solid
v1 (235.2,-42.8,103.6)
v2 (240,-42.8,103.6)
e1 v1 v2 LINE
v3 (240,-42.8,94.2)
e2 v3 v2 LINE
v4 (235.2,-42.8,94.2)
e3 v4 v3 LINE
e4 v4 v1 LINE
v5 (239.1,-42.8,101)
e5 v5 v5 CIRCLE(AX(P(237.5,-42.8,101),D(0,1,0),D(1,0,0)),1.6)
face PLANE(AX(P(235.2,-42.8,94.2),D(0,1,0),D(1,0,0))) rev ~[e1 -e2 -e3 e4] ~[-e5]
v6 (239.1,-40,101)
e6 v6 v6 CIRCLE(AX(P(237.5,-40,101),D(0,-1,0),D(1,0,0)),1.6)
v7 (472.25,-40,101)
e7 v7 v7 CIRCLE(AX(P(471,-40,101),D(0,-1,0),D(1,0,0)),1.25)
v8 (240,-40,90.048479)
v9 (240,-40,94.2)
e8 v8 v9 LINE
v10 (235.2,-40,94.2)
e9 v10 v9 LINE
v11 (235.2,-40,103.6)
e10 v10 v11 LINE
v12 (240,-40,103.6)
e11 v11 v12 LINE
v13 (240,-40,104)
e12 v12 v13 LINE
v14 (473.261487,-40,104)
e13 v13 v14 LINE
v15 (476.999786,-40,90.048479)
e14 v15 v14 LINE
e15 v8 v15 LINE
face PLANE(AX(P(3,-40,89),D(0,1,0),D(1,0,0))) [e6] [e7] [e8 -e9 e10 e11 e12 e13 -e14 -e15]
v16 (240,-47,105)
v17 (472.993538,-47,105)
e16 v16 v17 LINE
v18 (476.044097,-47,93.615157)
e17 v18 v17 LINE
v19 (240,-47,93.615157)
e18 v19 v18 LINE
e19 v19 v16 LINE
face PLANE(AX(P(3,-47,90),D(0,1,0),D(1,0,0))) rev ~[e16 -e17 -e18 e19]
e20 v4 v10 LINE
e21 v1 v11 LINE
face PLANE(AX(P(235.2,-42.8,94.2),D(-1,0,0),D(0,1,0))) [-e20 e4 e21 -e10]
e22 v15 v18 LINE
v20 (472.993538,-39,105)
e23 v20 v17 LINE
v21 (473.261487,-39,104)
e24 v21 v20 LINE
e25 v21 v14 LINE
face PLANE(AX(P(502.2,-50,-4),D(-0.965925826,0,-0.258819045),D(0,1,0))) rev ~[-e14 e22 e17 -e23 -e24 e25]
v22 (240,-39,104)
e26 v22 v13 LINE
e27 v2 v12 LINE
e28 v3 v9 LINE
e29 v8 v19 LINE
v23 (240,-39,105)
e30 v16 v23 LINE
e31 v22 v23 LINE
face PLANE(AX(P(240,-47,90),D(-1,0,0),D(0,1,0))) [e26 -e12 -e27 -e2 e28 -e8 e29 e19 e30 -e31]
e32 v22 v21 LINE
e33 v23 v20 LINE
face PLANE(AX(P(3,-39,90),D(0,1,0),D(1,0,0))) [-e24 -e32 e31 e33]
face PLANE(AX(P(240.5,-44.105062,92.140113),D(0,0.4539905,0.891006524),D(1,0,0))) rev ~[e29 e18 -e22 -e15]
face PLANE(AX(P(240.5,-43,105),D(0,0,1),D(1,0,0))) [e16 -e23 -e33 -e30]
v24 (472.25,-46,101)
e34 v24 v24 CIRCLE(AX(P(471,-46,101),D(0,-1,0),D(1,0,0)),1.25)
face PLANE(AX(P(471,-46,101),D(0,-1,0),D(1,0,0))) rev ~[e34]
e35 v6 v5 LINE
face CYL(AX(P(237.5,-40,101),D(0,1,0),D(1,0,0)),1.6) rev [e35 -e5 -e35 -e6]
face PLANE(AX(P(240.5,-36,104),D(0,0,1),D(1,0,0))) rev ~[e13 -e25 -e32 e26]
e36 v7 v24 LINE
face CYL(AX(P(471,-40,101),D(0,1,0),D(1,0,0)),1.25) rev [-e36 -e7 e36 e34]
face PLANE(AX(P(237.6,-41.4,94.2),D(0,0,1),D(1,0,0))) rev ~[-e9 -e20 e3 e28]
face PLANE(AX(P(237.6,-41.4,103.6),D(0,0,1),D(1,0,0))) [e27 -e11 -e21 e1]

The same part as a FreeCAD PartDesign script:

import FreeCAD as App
import Part
import Sketcher
Q = App.Units.Quantity

doc = App.newDocument("Part")
body = doc.addObject("PartDesign::Body", "Body")

# Sketch on XY plane
sketch1 = body.newObject("Sketcher::SketchObject", "Sketch")
sketch1.AttachmentSupport = (doc.getObject("XY_Plane"), [""])
sketch1.MapMode = "FlatFace"
sketch1.addGeometry(Part.Circle(App.Vector(0, 0, 0), App.Vector(0, 0, 1), 1.6), False)
sketch1.addConstraint([
    Sketcher.Constraint("Coincident", 0, 3, -1, 1),
    Sketcher.Constraint("Diameter", 0, Q("3.2 mm")),
])
pad1 = body.newObject("PartDesign::Pad", "Pad")
pad1.Profile = sketch1
pad1.Length = 6
body2 = doc.addObject("PartDesign::Body", "Body001")
doc.recompute()

body.Placement = App.Placement(App.Vector(0, 0, 0), App.Rotation(App.Vector(1, 0, 0), 90))
boolean = body2.newObject("PartDesign::Boolean", "Boolean")
boolean.Type = "Fuse"
boolean.addObjects([body])
body3 = doc.addObject("PartDesign::Body", "Body002")
doc.recompute()

body2.Placement = App.Placement(App.Vector(237.5, -40, 101), App.Rotation(App.Vector(0, 0, 1), 0))
boolean2 = body3.newObject("PartDesign::Boolean", "Boolean001")
boolean2.Type = "Fuse"
boolean2.addObjects([body2])
body4 = doc.addObject("PartDesign::Body", "Body003")

# Sketch on XY plane
sketch2 = body4.newObject("Sketcher::SketchObject", "Sketch001")
sketch2.AttachmentSupport = (doc.getObject("XY_Plane003"), [""])
sketch2.MapMode = "FlatFace"
sketch2.addGeometry(Part.Circle(App.Vector(0, 0, 0), App.Vector(0, 0, 1), 1.2), False)
sketch2.addConstraint([
    Sketcher.Constraint("Coincident", 0, 3, -1, 1),
    Sketcher.Constraint("Diameter", 0, Q("2.5 mm")),
])
pad2 = body4.newObject("PartDesign::Pad", "Pad001")
pad2.Profile = sketch2
pad2.Length = 6
body5 = doc.addObject("PartDesign::Body", "Body004")
doc.recompute()

body4.Placement = App.Placement(App.Vector(0, 0, 0), App.Rotation(App.Vector(1, 0, 0), 90))
boolean3 = body5.newObject("PartDesign::Boolean", "Boolean002")
boolean3.Type = "Fuse"
boolean3.addObjects([body4])
body6 = doc.addObject("PartDesign::Body", "Body005")
body6.AllowCompound = True
doc.recompute()

body5.Placement = App.Placement(App.Vector(471, -40, 101), App.Rotation(App.Vector(0, 0, 1), 0))
boolean4 = body6.newObject("PartDesign::Boolean", "Boolean003")
boolean4.Type = "Fuse"
boolean4.addObjects([body5])
doc.recompute()

boolean5 = body6.newObject("PartDesign::Boolean", "Boolean004")
boolean5.Type = "Fuse"
boolean5.addObjects([body3])
body7 = doc.addObject("PartDesign::Body", "Body006")

# Sketch on XY plane
sketch3 = body7.newObject("Sketcher::SketchObject", "Sketch002")
sketch3.AttachmentSupport = (doc.getObject("XY_Plane006"), [""])
sketch3.MapMode = "FlatFace"
sketch3.AttachmentOffset = App.Placement(App.Vector(0, 0, 94.2), App.Rotation())
sketch3.addGeometry([
    Part.LineSegment(App.Vector(235.2, -40, 0), App.Vector(235.2, -42.8, 0)),
    Part.LineSegment(App.Vector(235.2, -42.8, 0), App.Vector(240, -42.8, 0)),
    Part.LineSegment(App.Vector(240, -42.8, 0), App.Vector(240, -40, 0)),
    Part.LineSegment(App.Vector(240, -40, 0), App.Vector(235.2, -40, 0)),
], False)
sketch3.addConstraint([
    Sketcher.Constraint("Coincident", 0, 2, 1, 1),
    Sketcher.Constraint("Coincident", 1, 2, 2, 1),
    Sketcher.Constraint("Coincident", 2, 2, 3, 1),
    Sketcher.Constraint("Coincident", 3, 2, 0, 1),
    Sketcher.Constraint("Vertical", 0),
    Sketcher.Constraint("Horizontal", 1),
    Sketcher.Constraint("Vertical", 2),
    Sketcher.Constraint("Horizontal", 3),
    Sketcher.Constraint("DistanceX", 1, 1, 1, 2, Q("4.8 mm")),
    Sketcher.Constraint("DistanceY", 0, 2, 0, 1, Q("2.8 mm")),
    Sketcher.Constraint("DistanceX", -1, 1, 1, 2, Q("240 mm")),
    Sketcher.Constraint("DistanceY", 2, 2, -1, 1, Q("40 mm")),
])
pad3 = body7.newObject("PartDesign::Pad", "Pad002")
pad3.Profile = sketch3
pad3.Length = 9.4
body8 = doc.addObject("PartDesign::Body", "Body007")

# Sketch on XY plane
sketch4 = body8.newObject("Sketcher::SketchObject", "Sketch003")
sketch4.AttachmentSupport = (doc.getObject("XY_Plane007"), [""])
sketch4.MapMode = "FlatFace"
sketch4.AttachmentOffset = App.Placement(App.Vector(0, 0, 90), App.Rotation())
sketch4.addGeometry([
    Part.LineSegment(App.Vector(3, -39, 0), App.Vector(3, -47, 0)),
    Part.LineSegment(App.Vector(3, -47, 0), App.Vector(240, -47, 0)),
    Part.LineSegment(App.Vector(240, -47, 0), App.Vector(240, -39, 0)),
    Part.LineSegment(App.Vector(240, -39, 0), App.Vector(3, -39, 0)),
], False)
sketch4.addConstraint([
    Sketcher.Constraint("Coincident", 0, 2, 1, 1),
    Sketcher.Constraint("Coincident", 1, 2, 2, 1),
    Sketcher.Constraint("Coincident", 2, 2, 3, 1),
    Sketcher.Constraint("Coincident", 3, 2, 0, 1),
    Sketcher.Constraint("Vertical", 0),
    Sketcher.Constraint("Horizontal", 1),
    Sketcher.Constraint("Vertical", 2),
    Sketcher.Constraint("Horizontal", 3),
    Sketcher.Constraint("DistanceX", 1, 1, 1, 2, Q("237 mm")),
    Sketcher.Constraint("DistanceY", 0, 2, 0, 1, Q("8 mm")),
    Sketcher.Constraint("DistanceX", -1, 1, 0, 2, Q("3 mm")),
    Sketcher.Constraint("DistanceY", 0, 2, -1, 1, Q("47 mm")),
])
pad4 = body8.newObject("PartDesign::Pad", "Pad003")
pad4.Profile = sketch4
pad4.Length = 15
body9 = doc.addObject("PartDesign::Body", "Body008")

# Sketch on XY plane
sketch5 = body9.newObject("Sketcher::SketchObject", "Sketch004")
sketch5.AttachmentSupport = (doc.getObject("XY_Plane008"), [""])
sketch5.MapMode = "FlatFace"
sketch5.addGeometry([
    Part.LineSegment(App.Vector(0, 160, 0), App.Vector(0, 0, 0)),
    Part.LineSegment(App.Vector(0, 0, 0), App.Vector(37, 0, 0)),
    Part.LineSegment(App.Vector(37, 0, 0), App.Vector(37, 160, 0)),
    Part.LineSegment(App.Vector(37, 160, 0), App.Vector(0, 160, 0)),
], False)
sketch5.addConstraint([
    Sketcher.Constraint("Coincident", 0, 2, 1, 1),
    Sketcher.Constraint("Coincident", 1, 2, 2, 1),
    Sketcher.Constraint("Coincident", 2, 2, 3, 1),
    Sketcher.Constraint("Coincident", 3, 2, 0, 1),
    Sketcher.Constraint("Vertical", 0),
    Sketcher.Constraint("Horizontal", 1),
    Sketcher.Constraint("Vertical", 2),
    Sketcher.Constraint("Horizontal", 3),
    Sketcher.Constraint("Coincident", 0, 2, -1, 1),
    Sketcher.Constraint("DistanceX", 1, 1, 1, 2, Q("37 mm")),
    Sketcher.Constraint("DistanceY", 0, 2, 0, 1, Q("160 mm")),
])
pad5 = body9.newObject("PartDesign::Pad", "Pad004")
pad5.Profile = sketch5
pad5.Length = 120
body10 = doc.addObject("PartDesign::Body", "Body009")
doc.recompute()

body9.Placement = App.Placement(App.Vector(0, 0, 0), App.Rotation(App.Vector(0, 1, 0), 345))
boolean6 = body10.newObject("PartDesign::Boolean", "Boolean005")
boolean6.Type = "Fuse"
boolean6.addObjects([body9])
body11 = doc.addObject("PartDesign::Body", "Body010")
doc.recompute()

body10.Placement = App.Placement(App.Vector(502.2, -50, -4), App.Rotation(App.Vector(0, 0, 1), 0))
boolean7 = body11.newObject("PartDesign::Boolean", "Boolean006")
boolean7.Type = "Fuse"
boolean7.addObjects([body10])
body12 = doc.addObject("PartDesign::Body", "Body011")

# Sketch on XY plane
sketch6 = body12.newObject("Sketcher::SketchObject", "Sketch005")
sketch6.AttachmentSupport = (doc.getObject("XY_Plane011"), [""])
sketch6.MapMode = "FlatFace"
sketch6.addGeometry([
    Part.LineSegment(App.Vector(0, 10, 0), App.Vector(0, 0, 0)),
    Part.LineSegment(App.Vector(0, 0, 0), App.Vector(475, 0, 0)),
    Part.LineSegment(App.Vector(475, 0, 0), App.Vector(475, 10, 0)),
    Part.LineSegment(App.Vector(475, 10, 0), App.Vector(0, 10, 0)),
], False)
sketch6.addConstraint([
    Sketcher.Constraint("Coincident", 0, 2, 1, 1),
    Sketcher.Constraint("Coincident", 1, 2, 2, 1),
    Sketcher.Constraint("Coincident", 2, 2, 3, 1),
    Sketcher.Constraint("Coincident", 3, 2, 0, 1),
    Sketcher.Constraint("Vertical", 0),
    Sketcher.Constraint("Horizontal", 1),
    Sketcher.Constraint("Vertical", 2),
    Sketcher.Constraint("Horizontal", 3),
    Sketcher.Constraint("Coincident", 0, 2, -1, 1),
    Sketcher.Constraint("DistanceX", 1, 1, 1, 2, Q("475 mm")),
    Sketcher.Constraint("DistanceY", 0, 2, 0, 1, Q("10 mm")),
])
pad6 = body12.newObject("PartDesign::Pad", "Pad005")
pad6.Profile = sketch6
pad6.Length = 10
body13 = doc.addObject("PartDesign::Body", "Body012")
doc.recompute()

body12.Placement = App.Placement(App.Vector(0, 0, 0), App.Rotation(App.Vector(1, 0, 0), 333))
boolean8 = body13.newObject("PartDesign::Boolean", "Boolean007")
boolean8.Type = "Fuse"
boolean8.addObjects([body12])
body14 = doc.addObject("PartDesign::Body", "Body013")
doc.recompute()

body13.Placement = App.Placement(App.Vector(0, -53.1, 85.5), App.Rotation(App.Vector(0, 0, 1), 0))
boolean9 = body14.newObject("PartDesign::Boolean", "Boolean008")
boolean9.Type = "Fuse"
boolean9.addObjects([body13])
body15 = doc.addObject("PartDesign::Body", "Body014")

# Sketch on XY plane
sketch7 = body15.newObject("Sketcher::SketchObject", "Sketch006")
sketch7.AttachmentSupport = (doc.getObject("XY_Plane014"), [""])
sketch7.MapMode = "FlatFace"
sketch7.AttachmentOffset = App.Placement(App.Vector(0, 0, 89), App.Rotation())
sketch7.addGeometry([
    Part.LineSegment(App.Vector(0, -32, 0), App.Vector(0, -40, 0)),
    Part.LineSegment(App.Vector(0, -40, 0), App.Vector(475, -40, 0)),
    Part.LineSegment(App.Vector(475, -40, 0), App.Vector(475, -32, 0)),
    Part.LineSegment(App.Vector(475, -32, 0), App.Vector(0, -32, 0)),
], False)
sketch7.addConstraint([
    Sketcher.Constraint("Coincident", 0, 2, 1, 1),
    Sketcher.Constraint("Coincident", 1, 2, 2, 1),
    Sketcher.Constraint("Coincident", 2, 2, 3, 1),
    Sketcher.Constraint("Coincident", 3, 2, 0, 1),
    Sketcher.Constraint("Vertical", 0),
    Sketcher.Constraint("Horizontal", 1),
    Sketcher.Constraint("Vertical", 2),
    Sketcher.Constraint("Horizontal", 3),
    Sketcher.Constraint("PointOnObject", 0, 2, -2),
    Sketcher.Constraint("DistanceX", 1, 1, 1, 2, Q("475 mm")),
    Sketcher.Constraint("DistanceY", 0, 2, 0, 1, Q("8 mm")),
    Sketcher.Constraint("DistanceY", 0, 2, -1, 1, Q("40 mm")),
])
pad7 = body15.newObject("PartDesign::Pad", "Pad006")
pad7.Profile = sketch7
pad7.Length = 15
body16 = doc.addObject("PartDesign::Body", "Body015")

# Sketch on XY plane
sketch8 = body16.newObject("Sketcher::SketchObject", "Sketch007")
sketch8.AttachmentSupport = (doc.getObject("XY_Plane015"), [""])
sketch8.MapMode = "FlatFace"
sketch8.AttachmentOffset = App.Placement(App.Vector(0, 0, 90), App.Rotation())
sketch8.addGeometry([
    Part.LineSegment(App.Vector(0, -39, 0), App.Vector(0, -47, 0)),
    Part.LineSegment(App.Vector(0, -47, 0), App.Vector(475, -47, 0)),
    Part.LineSegment(App.Vector(475, -47, 0), App.Vector(475, -39, 0)),
    Part.LineSegment(App.Vector(475, -39, 0), App.Vector(0, -39, 0)),
], False)
sketch8.addConstraint([
    Sketcher.Constraint("Coincident", 0, 2, 1, 1),
    Sketcher.Constraint("Coincident", 1, 2, 2, 1),
    Sketcher.Constraint("Coincident", 2, 2, 3, 1),
    Sketcher.Constraint("Coincident", 3, 2, 0, 1),
    Sketcher.Constraint("Vertical", 0),
    Sketcher.Constraint("Horizontal", 1),
    Sketcher.Constraint("Vertical", 2),
    Sketcher.Constraint("Horizontal", 3),
    Sketcher.Constraint("PointOnObject", 0, 2, -2),
    Sketcher.Constraint("DistanceX", 1, 1, 1, 2, Q("475 mm")),
    Sketcher.Constraint("DistanceY", 0, 2, 0, 1, Q("8 mm")),
    Sketcher.Constraint("DistanceY", 0, 2, -1, 1, Q("47 mm")),
])
pad8 = body16.newObject("PartDesign::Pad", "Pad007")
pad8.Profile = sketch8
pad8.Length = 15
doc.recompute()

boolean10 = body16.newObject("PartDesign::Boolean", "Boolean009")
boolean10.Type = "Cut"
boolean10.addObjects([body15])
doc.recompute()

boolean11 = body16.newObject("PartDesign::Boolean", "Boolean010")
boolean11.Type = "Cut"
boolean11.addObjects([body14])
body17 = doc.addObject("PartDesign::Body", "Body016")
doc.recompute()

body16.Placement = App.Placement(App.Vector(3, 0, 0), App.Rotation(App.Vector(0, 0, 1), 0))
boolean12 = body17.newObject("PartDesign::Boolean", "Boolean011")
boolean12.Type = "Fuse"
boolean12.addObjects([body16])
doc.recompute()

boolean13 = body17.newObject("PartDesign::Boolean", "Boolean012")
boolean13.Type = "Cut"
boolean13.addObjects([body11])
doc.recompute()

boolean14 = body17.newObject("PartDesign::Boolean", "Boolean013")
boolean14.Type = "Cut"
boolean14.addObjects([body8])
doc.recompute()

boolean15 = body17.newObject("PartDesign::Boolean", "Boolean014")
boolean15.Type = "Fuse"
boolean15.addObjects([body7])
doc.recompute()

boolean16 = body17.newObject("PartDesign::Boolean", "Boolean015")
boolean16.Type = "Cut"
boolean16.addObjects([body6])

doc.recompute()
